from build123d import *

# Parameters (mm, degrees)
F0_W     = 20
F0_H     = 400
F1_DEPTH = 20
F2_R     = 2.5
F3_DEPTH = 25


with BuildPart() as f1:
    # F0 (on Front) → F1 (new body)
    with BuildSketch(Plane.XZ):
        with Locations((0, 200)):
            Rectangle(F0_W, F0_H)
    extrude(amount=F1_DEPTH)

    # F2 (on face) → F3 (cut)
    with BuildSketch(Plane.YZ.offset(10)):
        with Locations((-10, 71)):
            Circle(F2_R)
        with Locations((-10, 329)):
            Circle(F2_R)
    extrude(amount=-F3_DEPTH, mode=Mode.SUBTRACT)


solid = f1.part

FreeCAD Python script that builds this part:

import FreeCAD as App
import Part
import Sketcher
Q = App.Units.Quantity

doc = App.newDocument("Part")
body = doc.addObject("PartDesign::Body", "Body")

sketch1 = body.newObject("Sketcher::SketchObject", "Sketch")
sketch1.AttachmentSupport = (doc.getObject("XZ_Plane"), [""])
sketch1.MapMode = "FlatFace"
sketch1.addGeometry([
    Part.LineSegment(App.Vector(-10, 400, 0), App.Vector(-10, 0, 0)),
    Part.LineSegment(App.Vector(-10, 0, 0), App.Vector(10, 0, 0)),
    Part.LineSegment(App.Vector(10, 0, 0), App.Vector(10, 400, 0)),
    Part.LineSegment(App.Vector(10, 400, 0), App.Vector(-10, 400, 0)),
], False)
sketch1.addConstraint([
    Sketcher.Constraint("Coincident", 0, 2, 1, 1),
    Sketcher.Constraint("Coincident", 1, 2, 2, 1),
    Sketcher.Constraint("Coincident", 2, 2, 3, 1),
    Sketcher.Constraint("Coincident", 3, 2, 0, 1),
    Sketcher.Constraint("Vertical", 0),
    Sketcher.Constraint("Horizontal", 1),
    Sketcher.Constraint("Vertical", 2),
    Sketcher.Constraint("Horizontal", 3),
    Sketcher.Constraint("Symmetric", 0, 2, 1, 2, -1, 1),
    Sketcher.Constraint("DistanceX", 1, 1, 1, 2, Q("20 mm")),
    Sketcher.Constraint("DistanceY", 0, 2, 0, 1, Q("400 mm")),
])
pad1 = body.newObject("PartDesign::Pad", "Pad")
pad1.Profile = sketch1
pad1.Length = 20

sketch2 = body.newObject("Sketcher::SketchObject", "Sketch001")
sketch2.AttachmentSupport = (doc.getObject("YZ_Plane"), [""])
sketch2.MapMode = "FlatFace"
sketch2.AttachmentOffset = App.Placement(App.Vector(0, 0, 10), App.Rotation())
sketch2.addGeometry([
    Part.Circle(App.Vector(-10, 71, 0), App.Vector(0, 0, 1), 2.5),
    Part.Circle(App.Vector(-10, 329, 0), App.Vector(0, 0, 1), 2.5),
], False)
sketch2.addConstraint([
    Sketcher.Constraint("Equal", 0, 1),
    Sketcher.Constraint("Vertical", 0, 3, 1, 3),
    Sketcher.Constraint("Diameter", 0, Q("5 mm")),
    Sketcher.Constraint("DistanceX", 0, 3, -1, 1, Q("10 mm")),
    Sketcher.Constraint("DistanceY", -1, 1, 0, 3, Q("71 mm")),
    Sketcher.Constraint("DistanceY", -1, 1, 1, 3, Q("329 mm")),
])
pocket1 = body.newObject("PartDesign::Pocket", "Pocket")
pocket1.Profile = sketch2
pocket1.Length = 25

doc.recompute()
